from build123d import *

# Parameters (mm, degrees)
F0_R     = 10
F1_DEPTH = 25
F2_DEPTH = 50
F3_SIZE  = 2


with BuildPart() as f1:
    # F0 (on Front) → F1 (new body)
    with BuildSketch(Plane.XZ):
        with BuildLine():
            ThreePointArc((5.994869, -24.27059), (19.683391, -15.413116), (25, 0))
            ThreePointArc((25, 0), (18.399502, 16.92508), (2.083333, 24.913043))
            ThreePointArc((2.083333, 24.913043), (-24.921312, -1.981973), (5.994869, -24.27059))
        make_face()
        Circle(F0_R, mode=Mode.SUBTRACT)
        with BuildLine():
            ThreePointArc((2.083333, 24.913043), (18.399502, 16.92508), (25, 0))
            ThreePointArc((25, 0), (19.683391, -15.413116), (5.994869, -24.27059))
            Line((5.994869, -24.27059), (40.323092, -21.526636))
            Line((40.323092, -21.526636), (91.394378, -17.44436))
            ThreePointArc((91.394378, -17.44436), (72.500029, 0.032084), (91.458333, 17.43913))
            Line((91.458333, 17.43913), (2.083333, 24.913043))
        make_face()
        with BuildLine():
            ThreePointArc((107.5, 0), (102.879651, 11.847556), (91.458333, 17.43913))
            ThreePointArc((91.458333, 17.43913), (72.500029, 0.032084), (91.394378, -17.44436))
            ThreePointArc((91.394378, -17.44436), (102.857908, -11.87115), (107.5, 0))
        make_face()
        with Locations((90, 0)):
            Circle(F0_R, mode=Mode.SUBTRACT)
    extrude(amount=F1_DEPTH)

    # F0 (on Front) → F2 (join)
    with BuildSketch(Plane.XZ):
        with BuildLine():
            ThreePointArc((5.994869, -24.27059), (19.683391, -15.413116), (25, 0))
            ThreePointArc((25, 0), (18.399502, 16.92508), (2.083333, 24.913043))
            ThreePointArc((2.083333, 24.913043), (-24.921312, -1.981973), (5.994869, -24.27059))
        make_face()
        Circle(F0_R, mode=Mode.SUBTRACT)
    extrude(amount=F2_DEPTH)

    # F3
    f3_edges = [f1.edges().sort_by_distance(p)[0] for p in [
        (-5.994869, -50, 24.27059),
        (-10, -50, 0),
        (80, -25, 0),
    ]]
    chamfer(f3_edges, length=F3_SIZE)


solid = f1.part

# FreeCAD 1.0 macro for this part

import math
import FreeCAD as App
import Part
import Sketcher
from FreeCAD import Vector


def edges_at(feature, points):
    """Names of the edges that pass closest to the given points."""
    edges = feature.Shape.Edges
    near = lambda p: min(range(len(edges)), key=lambda i: edges[i].distToShape(Part.Vertex(*p))[0])
    return sorted({f"Edge{near(p) + 1}" for p in points})

doc = App.newDocument("Part")
body = doc.addObject("PartDesign::Body", "Body")

sketch1 = body.newObject("Sketcher::SketchObject", "Sketch")
sketch1.AttachmentSupport = (doc.getObject("XZ_Plane"), [""])
sketch1.MapMode = "FlatFace"
sketch1.addGeometry(Part.ArcOfCircle(Part.Circle(Vector(0, 0, 0), Vector(0, 0, 1), 25), math.radians(85), math.radians(284)), False)
sketch1.addGeometry(Part.LineSegment(Vector(6, -24, 0), Vector(40, -22, 0)), False)
sketch1.addGeometry(Part.LineSegment(Vector(40, -22, 0), Vector(91, -17, 0)), False)
sketch1.addGeometry(Part.ArcOfCircle(Part.Circle(Vector(90, 0, 0), Vector(0, 0, 1), 17), math.radians(-85), math.radians(0)), False)
sketch1.addGeometry(Part.ArcOfCircle(Part.Circle(Vector(90, 0, 0), Vector(0, 0, 1), 18), math.radians(0), math.radians(85)), False)
sketch1.addGeometry(Part.LineSegment(Vector(91, 17, 0), Vector(2, 25, 0)), False)
sketch1.addGeometry(Part.Circle(Vector(0, 0, 0), Vector(0, 0, 1), 10), False)
sketch1.addGeometry(Part.Circle(Vector(90, 0, 0), Vector(0, 0, 1), 10), False)
sketch1.addConstraint(Sketcher.Constraint("Coincident", 0, 2, 1, 1))
sketch1.addConstraint(Sketcher.Constraint("Coincident", 1, 2, 2, 1))
sketch1.addConstraint(Sketcher.Constraint("Tangent", 2, 2, 3, 1))
sketch1.addConstraint(Sketcher.Constraint("Tangent", 3, 2, 4, 1))
sketch1.addConstraint(Sketcher.Constraint("Tangent", 4, 2, 5, 1))
sketch1.addConstraint(Sketcher.Constraint("Tangent", 5, 2, 0, 1))
sketch1.addConstraint(Sketcher.Constraint("Coincident", 0, 3, -1, 1))
sketch1.addConstraint(Sketcher.Constraint("Coincident", 6, 3, -1, 1))
sketch1.addConstraint(Sketcher.Constraint("Coincident", 7, 3, 3, 3))
sketch1.addConstraint(Sketcher.Constraint("Equal", 3, 4))
sketch1.addConstraint(Sketcher.Constraint("Equal", 6, 7))
sketch1.addConstraint(Sketcher.Constraint("PointOnObject", 3, 3, -1))
sketch1.addConstraint(Sketcher.Constraint("PointOnObject", 3, 2, -1))
sketch1.addConstraint(Sketcher.Constraint("Parallel", 1, 2))
sketch1.addConstraint(Sketcher.Constraint("Diameter", 6, 20.0))
sketch1.addConstraint(Sketcher.Constraint("Radius", 0, 25.0))
sketch1.addConstraint(Sketcher.Constraint("Radius", 3, 17.499999))
sketch1.addConstraint(Sketcher.Constraint("DistanceX", -1, 1, 3, 3, 90.000001))
sketch1.addConstraint(Sketcher.Constraint("Distance", 2, 51.23418))
sketch1.addConstraint(Sketcher.Constraint("DistanceX", -1, 1, 0, 2, 5.994869))
pad1 = body.newObject("PartDesign::Pad", "Pad")
pad1.Profile = sketch1
pad1.Length = 25

sketch2 = body.newObject("Sketcher::SketchObject", "Sketch001")
sketch2.AttachmentSupport = (doc.getObject("XZ_Plane"), [""])
sketch2.MapMode = "FlatFace"
sketch2.addGeometry(Part.ArcOfCircle(Part.Circle(Vector(0, 0, 0), Vector(0, 0, 1), 25), math.radians(-76), math.radians(0)), False)
sketch2.addGeometry(Part.ArcOfCircle(Part.Circle(Vector(0, 0, 0), Vector(0, 0, 1), 25), math.radians(0), math.radians(85)), False)
sketch2.addGeometry(Part.ArcOfCircle(Part.Circle(Vector(0, 0, 0), Vector(0, 0, 1), 25), math.radians(85), math.radians(284)), False)
sketch2.addGeometry(Part.Circle(Vector(0, 0, 0), Vector(0, 0, 1), 10), False)
sketch2.addConstraint(Sketcher.Constraint("Tangent", 0, 2, 1, 1))
sketch2.addConstraint(Sketcher.Constraint("Tangent", 1, 2, 2, 1))
sketch2.addConstraint(Sketcher.Constraint("Tangent", 2, 2, 0, 1))
sketch2.addConstraint(Sketcher.Constraint("Coincident", 0, 3, -1, 1))
sketch2.addConstraint(Sketcher.Constraint("Coincident", 3, 3, -1, 1))
sketch2.addConstraint(Sketcher.Constraint("PointOnObject", 0, 2, -1))
sketch2.addConstraint(Sketcher.Constraint("Diameter", 3, 20.0))
sketch2.addConstraint(Sketcher.Constraint("Radius", 1, 24.999999))
sketch2.addConstraint(Sketcher.Constraint("DistanceX", -1, 1, 2, 2, 5.994869))
sketch2.addConstraint(Sketcher.Constraint("DistanceX", 0, 3, 1, 2, 2.083331))
pad2 = body.newObject("PartDesign::Pad", "Pad001")
pad2.Profile = sketch2
pad2.Length = 50
doc.recompute()

chamfer = body.newObject("PartDesign::Chamfer", "Chamfer")
chamfer.Base = (pad2, edges_at(pad2, [(-24.921, -50, -1.982), (-10, -50, 0), (80, -25, 0)]))
chamfer.Size = 2

doc.recompute()
